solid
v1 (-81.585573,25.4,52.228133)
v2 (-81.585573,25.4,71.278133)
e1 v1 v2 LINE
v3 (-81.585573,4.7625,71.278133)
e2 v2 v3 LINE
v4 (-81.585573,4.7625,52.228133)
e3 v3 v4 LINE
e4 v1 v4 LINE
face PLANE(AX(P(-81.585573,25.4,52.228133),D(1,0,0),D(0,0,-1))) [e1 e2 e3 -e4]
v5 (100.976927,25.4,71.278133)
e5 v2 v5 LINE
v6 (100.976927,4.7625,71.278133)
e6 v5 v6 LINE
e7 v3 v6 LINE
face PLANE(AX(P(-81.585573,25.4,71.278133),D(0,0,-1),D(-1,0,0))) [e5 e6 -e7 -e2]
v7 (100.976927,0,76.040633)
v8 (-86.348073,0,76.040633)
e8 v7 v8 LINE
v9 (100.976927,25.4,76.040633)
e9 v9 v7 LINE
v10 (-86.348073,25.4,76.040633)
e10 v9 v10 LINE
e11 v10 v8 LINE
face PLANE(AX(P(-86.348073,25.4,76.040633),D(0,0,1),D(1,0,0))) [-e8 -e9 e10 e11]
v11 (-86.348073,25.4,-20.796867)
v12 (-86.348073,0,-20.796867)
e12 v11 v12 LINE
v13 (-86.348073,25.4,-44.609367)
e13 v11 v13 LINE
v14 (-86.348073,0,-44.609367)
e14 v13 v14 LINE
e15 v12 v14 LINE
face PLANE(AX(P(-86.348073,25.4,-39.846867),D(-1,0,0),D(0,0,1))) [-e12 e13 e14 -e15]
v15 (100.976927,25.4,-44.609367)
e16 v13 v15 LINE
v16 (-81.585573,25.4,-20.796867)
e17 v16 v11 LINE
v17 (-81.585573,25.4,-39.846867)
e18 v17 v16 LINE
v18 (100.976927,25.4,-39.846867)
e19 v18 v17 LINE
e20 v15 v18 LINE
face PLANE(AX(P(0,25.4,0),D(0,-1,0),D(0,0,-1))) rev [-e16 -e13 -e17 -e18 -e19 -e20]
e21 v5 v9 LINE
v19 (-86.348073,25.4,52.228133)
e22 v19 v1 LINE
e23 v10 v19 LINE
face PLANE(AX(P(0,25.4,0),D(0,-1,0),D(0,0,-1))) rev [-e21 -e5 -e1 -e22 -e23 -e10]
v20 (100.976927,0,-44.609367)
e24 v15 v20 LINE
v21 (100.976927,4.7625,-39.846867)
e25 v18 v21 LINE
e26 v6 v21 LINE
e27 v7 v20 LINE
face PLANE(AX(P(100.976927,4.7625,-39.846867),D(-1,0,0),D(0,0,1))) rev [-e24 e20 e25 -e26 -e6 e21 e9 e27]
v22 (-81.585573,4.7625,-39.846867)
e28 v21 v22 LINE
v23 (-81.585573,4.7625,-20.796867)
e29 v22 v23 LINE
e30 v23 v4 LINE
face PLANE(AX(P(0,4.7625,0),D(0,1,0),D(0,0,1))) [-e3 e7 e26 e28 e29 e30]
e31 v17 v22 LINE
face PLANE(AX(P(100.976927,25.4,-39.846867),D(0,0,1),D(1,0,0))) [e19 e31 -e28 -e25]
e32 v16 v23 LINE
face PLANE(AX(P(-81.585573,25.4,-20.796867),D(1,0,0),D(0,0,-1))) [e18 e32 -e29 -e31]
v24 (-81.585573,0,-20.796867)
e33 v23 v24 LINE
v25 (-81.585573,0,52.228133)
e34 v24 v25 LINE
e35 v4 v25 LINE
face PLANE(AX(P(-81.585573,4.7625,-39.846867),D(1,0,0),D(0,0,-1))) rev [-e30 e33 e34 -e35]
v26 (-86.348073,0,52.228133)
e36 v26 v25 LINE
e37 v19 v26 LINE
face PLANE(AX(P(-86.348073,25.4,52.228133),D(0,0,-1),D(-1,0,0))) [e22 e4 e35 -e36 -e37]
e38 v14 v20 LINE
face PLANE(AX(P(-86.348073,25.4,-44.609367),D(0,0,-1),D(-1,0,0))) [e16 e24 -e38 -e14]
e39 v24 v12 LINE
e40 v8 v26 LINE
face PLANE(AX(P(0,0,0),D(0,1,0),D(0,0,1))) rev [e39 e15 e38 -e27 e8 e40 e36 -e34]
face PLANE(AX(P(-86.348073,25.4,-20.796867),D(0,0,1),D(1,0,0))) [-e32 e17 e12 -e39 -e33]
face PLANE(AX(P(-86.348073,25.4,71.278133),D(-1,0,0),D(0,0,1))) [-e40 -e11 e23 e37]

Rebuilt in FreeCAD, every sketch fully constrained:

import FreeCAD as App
import Part
import Sketcher
Q = App.Units.Quantity


def add_polygon(sketch, points):
    """Adds a closed chain of lines whose ends are joined by coincident constraints."""
    first, n = sketch.GeometryCount, len(points)
    for a, b in zip(points, points[1:] + points[:1]):
        sketch.addGeometry(Part.LineSegment(App.Vector(*a, 0), App.Vector(*b, 0)), False)
    for i in range(n):
        sketch.addConstraint(Sketcher.Constraint("Coincident", first + i, 2, first + (i + 1) % n, 1))

doc = App.newDocument("Part")
params = doc.addObject("Spreadsheet::Sheet", "Params")
for row, (alias, value) in enumerate([
    ("sketch1_width", "7.1875 in"),
    ("sketch1_height", "4.375 in"),
    ("pad1_length", "0.1875 in"),
    ("sketch2_height", "0.75 in"),
    ("sketch2_width", "7.375 in"),
    ("sketch2_width2", "7.1875 in"),
    ("pad2_length", "1 in"),
], start=1):
    params.set(f"A{row}", alias)
    params.set(f"B{row}", "=" + value)
    params.setAlias(f"B{row}", alias)

body = doc.addObject("PartDesign::Body", "Body")

# Sketch on XZ plane
sketch1 = body.newObject("Sketcher::SketchObject", "Sketch")
sketch1.AttachmentSupport = (doc.getObject("XZ_Plane"), [""])
sketch1.MapMode = "FlatFace"
add_polygon(sketch1, [(-81.585573, -39.846867), (-81.585573, 71.278133), (100.976927, 71.278133), (100.976927, -39.846867)])  # lines 0-3
sketch1.addConstraint([
    Sketcher.Constraint("Vertical", 0),
    Sketcher.Constraint("Horizontal", 1),
    Sketcher.Constraint("Vertical", 2),
    Sketcher.Constraint("Horizontal", 3),
    Sketcher.Constraint("DistanceX", 1, 1, 1, 2, Q("7.1875 in")),
    Sketcher.Constraint("DistanceY", 0, 1, 0, 2, Q("4.375 in")),
    Sketcher.Constraint("DistanceX", 0, 2, -1, 1, 81.585573),
    Sketcher.Constraint("DistanceY", -1, 1, 0, 2, 71.278133),
])
sketch1.setExpression("Constraints[8]", "Params.sketch1_width")
sketch1.setExpression("Constraints[9]", "Params.sketch1_height")
pad1 = body.newObject("PartDesign::Pad", "Pad")
pad1.Profile = sketch1
pad1.setExpression("Length", "Params.pad1_length")
pad1.Reversed = True

# Sketch on XZ plane
sketch2 = body.newObject("Sketcher::SketchObject", "Sketch001")
sketch2.AttachmentSupport = (doc.getObject("XZ_Plane"), [""])
sketch2.MapMode = "FlatFace"
add_polygon(sketch2, [(-86.348073, -20.796867), (-86.348073, -44.609367), (100.976927, -44.609367), (100.976927, -39.846867), (-81.585573, -39.846867), (-81.585573, -20.796867)])  # lines 0-5
add_polygon(sketch2, [(-86.348073, 52.228133), (-81.585573, 52.228133), (-81.585573, 71.278133), (100.976927, 71.278133), (100.976927, 76.040633), (-86.348073, 76.040633)])  # lines 6-11
sketch2.addConstraint([
    Sketcher.Constraint("Vertical", 0),
    Sketcher.Constraint("Horizontal", 1),
    Sketcher.Constraint("Vertical", 2),
    Sketcher.Constraint("Horizontal", 3),
    Sketcher.Constraint("Vertical", 4),
    Sketcher.Constraint("Horizontal", 5),
    Sketcher.Constraint("Horizontal", 6),
    Sketcher.Constraint("Vertical", 7),
    Sketcher.Constraint("Horizontal", 8),
    Sketcher.Constraint("Vertical", 9),
    Sketcher.Constraint("Horizontal", 10),
    Sketcher.Constraint("Vertical", 11),
    Sketcher.Constraint("Vertical", 4, 2, 6, 2),
    Sketcher.Constraint("Vertical", 2, 2, 8, 2),
    Sketcher.Constraint("Vertical", 5, 2, 10, 2),
    Sketcher.Constraint("Equal", 6, 2),
    Sketcher.Constraint("Equal", 4, 7),
    Sketcher.Constraint("Equal", 2, 9),
    Sketcher.Constraint("DistanceY", 4, 1, 4, 2, Q("0.75 in")),
    Sketcher.Constraint("DistanceX", 1, 1, 1, 2, Q("7.375 in")),
    Sketcher.Constraint("DistanceX", 3, 2, 3, 1, Q("7.1875 in")),
    Sketcher.Constraint("DistanceY", 1, 2, 9, 2, Q("4.75 in")),
    Sketcher.Constraint("DistanceX", 0, 2, -1, 1, 86.348073),
    Sketcher.Constraint("DistanceY", 0, 2, -1, 1, 44.609367),
])
sketch2.setExpression("Constraints[30]", "Params.sketch2_height")
sketch2.setExpression("Constraints[31]", "Params.sketch2_width")
sketch2.setExpression("Constraints[32]", "Params.sketch2_width2")
pad2 = body.newObject("PartDesign::Pad", "Pad001")
pad2.Profile = sketch2
pad2.setExpression("Length", "Params.pad2_length")
pad2.Reversed = True

doc.recompute()
